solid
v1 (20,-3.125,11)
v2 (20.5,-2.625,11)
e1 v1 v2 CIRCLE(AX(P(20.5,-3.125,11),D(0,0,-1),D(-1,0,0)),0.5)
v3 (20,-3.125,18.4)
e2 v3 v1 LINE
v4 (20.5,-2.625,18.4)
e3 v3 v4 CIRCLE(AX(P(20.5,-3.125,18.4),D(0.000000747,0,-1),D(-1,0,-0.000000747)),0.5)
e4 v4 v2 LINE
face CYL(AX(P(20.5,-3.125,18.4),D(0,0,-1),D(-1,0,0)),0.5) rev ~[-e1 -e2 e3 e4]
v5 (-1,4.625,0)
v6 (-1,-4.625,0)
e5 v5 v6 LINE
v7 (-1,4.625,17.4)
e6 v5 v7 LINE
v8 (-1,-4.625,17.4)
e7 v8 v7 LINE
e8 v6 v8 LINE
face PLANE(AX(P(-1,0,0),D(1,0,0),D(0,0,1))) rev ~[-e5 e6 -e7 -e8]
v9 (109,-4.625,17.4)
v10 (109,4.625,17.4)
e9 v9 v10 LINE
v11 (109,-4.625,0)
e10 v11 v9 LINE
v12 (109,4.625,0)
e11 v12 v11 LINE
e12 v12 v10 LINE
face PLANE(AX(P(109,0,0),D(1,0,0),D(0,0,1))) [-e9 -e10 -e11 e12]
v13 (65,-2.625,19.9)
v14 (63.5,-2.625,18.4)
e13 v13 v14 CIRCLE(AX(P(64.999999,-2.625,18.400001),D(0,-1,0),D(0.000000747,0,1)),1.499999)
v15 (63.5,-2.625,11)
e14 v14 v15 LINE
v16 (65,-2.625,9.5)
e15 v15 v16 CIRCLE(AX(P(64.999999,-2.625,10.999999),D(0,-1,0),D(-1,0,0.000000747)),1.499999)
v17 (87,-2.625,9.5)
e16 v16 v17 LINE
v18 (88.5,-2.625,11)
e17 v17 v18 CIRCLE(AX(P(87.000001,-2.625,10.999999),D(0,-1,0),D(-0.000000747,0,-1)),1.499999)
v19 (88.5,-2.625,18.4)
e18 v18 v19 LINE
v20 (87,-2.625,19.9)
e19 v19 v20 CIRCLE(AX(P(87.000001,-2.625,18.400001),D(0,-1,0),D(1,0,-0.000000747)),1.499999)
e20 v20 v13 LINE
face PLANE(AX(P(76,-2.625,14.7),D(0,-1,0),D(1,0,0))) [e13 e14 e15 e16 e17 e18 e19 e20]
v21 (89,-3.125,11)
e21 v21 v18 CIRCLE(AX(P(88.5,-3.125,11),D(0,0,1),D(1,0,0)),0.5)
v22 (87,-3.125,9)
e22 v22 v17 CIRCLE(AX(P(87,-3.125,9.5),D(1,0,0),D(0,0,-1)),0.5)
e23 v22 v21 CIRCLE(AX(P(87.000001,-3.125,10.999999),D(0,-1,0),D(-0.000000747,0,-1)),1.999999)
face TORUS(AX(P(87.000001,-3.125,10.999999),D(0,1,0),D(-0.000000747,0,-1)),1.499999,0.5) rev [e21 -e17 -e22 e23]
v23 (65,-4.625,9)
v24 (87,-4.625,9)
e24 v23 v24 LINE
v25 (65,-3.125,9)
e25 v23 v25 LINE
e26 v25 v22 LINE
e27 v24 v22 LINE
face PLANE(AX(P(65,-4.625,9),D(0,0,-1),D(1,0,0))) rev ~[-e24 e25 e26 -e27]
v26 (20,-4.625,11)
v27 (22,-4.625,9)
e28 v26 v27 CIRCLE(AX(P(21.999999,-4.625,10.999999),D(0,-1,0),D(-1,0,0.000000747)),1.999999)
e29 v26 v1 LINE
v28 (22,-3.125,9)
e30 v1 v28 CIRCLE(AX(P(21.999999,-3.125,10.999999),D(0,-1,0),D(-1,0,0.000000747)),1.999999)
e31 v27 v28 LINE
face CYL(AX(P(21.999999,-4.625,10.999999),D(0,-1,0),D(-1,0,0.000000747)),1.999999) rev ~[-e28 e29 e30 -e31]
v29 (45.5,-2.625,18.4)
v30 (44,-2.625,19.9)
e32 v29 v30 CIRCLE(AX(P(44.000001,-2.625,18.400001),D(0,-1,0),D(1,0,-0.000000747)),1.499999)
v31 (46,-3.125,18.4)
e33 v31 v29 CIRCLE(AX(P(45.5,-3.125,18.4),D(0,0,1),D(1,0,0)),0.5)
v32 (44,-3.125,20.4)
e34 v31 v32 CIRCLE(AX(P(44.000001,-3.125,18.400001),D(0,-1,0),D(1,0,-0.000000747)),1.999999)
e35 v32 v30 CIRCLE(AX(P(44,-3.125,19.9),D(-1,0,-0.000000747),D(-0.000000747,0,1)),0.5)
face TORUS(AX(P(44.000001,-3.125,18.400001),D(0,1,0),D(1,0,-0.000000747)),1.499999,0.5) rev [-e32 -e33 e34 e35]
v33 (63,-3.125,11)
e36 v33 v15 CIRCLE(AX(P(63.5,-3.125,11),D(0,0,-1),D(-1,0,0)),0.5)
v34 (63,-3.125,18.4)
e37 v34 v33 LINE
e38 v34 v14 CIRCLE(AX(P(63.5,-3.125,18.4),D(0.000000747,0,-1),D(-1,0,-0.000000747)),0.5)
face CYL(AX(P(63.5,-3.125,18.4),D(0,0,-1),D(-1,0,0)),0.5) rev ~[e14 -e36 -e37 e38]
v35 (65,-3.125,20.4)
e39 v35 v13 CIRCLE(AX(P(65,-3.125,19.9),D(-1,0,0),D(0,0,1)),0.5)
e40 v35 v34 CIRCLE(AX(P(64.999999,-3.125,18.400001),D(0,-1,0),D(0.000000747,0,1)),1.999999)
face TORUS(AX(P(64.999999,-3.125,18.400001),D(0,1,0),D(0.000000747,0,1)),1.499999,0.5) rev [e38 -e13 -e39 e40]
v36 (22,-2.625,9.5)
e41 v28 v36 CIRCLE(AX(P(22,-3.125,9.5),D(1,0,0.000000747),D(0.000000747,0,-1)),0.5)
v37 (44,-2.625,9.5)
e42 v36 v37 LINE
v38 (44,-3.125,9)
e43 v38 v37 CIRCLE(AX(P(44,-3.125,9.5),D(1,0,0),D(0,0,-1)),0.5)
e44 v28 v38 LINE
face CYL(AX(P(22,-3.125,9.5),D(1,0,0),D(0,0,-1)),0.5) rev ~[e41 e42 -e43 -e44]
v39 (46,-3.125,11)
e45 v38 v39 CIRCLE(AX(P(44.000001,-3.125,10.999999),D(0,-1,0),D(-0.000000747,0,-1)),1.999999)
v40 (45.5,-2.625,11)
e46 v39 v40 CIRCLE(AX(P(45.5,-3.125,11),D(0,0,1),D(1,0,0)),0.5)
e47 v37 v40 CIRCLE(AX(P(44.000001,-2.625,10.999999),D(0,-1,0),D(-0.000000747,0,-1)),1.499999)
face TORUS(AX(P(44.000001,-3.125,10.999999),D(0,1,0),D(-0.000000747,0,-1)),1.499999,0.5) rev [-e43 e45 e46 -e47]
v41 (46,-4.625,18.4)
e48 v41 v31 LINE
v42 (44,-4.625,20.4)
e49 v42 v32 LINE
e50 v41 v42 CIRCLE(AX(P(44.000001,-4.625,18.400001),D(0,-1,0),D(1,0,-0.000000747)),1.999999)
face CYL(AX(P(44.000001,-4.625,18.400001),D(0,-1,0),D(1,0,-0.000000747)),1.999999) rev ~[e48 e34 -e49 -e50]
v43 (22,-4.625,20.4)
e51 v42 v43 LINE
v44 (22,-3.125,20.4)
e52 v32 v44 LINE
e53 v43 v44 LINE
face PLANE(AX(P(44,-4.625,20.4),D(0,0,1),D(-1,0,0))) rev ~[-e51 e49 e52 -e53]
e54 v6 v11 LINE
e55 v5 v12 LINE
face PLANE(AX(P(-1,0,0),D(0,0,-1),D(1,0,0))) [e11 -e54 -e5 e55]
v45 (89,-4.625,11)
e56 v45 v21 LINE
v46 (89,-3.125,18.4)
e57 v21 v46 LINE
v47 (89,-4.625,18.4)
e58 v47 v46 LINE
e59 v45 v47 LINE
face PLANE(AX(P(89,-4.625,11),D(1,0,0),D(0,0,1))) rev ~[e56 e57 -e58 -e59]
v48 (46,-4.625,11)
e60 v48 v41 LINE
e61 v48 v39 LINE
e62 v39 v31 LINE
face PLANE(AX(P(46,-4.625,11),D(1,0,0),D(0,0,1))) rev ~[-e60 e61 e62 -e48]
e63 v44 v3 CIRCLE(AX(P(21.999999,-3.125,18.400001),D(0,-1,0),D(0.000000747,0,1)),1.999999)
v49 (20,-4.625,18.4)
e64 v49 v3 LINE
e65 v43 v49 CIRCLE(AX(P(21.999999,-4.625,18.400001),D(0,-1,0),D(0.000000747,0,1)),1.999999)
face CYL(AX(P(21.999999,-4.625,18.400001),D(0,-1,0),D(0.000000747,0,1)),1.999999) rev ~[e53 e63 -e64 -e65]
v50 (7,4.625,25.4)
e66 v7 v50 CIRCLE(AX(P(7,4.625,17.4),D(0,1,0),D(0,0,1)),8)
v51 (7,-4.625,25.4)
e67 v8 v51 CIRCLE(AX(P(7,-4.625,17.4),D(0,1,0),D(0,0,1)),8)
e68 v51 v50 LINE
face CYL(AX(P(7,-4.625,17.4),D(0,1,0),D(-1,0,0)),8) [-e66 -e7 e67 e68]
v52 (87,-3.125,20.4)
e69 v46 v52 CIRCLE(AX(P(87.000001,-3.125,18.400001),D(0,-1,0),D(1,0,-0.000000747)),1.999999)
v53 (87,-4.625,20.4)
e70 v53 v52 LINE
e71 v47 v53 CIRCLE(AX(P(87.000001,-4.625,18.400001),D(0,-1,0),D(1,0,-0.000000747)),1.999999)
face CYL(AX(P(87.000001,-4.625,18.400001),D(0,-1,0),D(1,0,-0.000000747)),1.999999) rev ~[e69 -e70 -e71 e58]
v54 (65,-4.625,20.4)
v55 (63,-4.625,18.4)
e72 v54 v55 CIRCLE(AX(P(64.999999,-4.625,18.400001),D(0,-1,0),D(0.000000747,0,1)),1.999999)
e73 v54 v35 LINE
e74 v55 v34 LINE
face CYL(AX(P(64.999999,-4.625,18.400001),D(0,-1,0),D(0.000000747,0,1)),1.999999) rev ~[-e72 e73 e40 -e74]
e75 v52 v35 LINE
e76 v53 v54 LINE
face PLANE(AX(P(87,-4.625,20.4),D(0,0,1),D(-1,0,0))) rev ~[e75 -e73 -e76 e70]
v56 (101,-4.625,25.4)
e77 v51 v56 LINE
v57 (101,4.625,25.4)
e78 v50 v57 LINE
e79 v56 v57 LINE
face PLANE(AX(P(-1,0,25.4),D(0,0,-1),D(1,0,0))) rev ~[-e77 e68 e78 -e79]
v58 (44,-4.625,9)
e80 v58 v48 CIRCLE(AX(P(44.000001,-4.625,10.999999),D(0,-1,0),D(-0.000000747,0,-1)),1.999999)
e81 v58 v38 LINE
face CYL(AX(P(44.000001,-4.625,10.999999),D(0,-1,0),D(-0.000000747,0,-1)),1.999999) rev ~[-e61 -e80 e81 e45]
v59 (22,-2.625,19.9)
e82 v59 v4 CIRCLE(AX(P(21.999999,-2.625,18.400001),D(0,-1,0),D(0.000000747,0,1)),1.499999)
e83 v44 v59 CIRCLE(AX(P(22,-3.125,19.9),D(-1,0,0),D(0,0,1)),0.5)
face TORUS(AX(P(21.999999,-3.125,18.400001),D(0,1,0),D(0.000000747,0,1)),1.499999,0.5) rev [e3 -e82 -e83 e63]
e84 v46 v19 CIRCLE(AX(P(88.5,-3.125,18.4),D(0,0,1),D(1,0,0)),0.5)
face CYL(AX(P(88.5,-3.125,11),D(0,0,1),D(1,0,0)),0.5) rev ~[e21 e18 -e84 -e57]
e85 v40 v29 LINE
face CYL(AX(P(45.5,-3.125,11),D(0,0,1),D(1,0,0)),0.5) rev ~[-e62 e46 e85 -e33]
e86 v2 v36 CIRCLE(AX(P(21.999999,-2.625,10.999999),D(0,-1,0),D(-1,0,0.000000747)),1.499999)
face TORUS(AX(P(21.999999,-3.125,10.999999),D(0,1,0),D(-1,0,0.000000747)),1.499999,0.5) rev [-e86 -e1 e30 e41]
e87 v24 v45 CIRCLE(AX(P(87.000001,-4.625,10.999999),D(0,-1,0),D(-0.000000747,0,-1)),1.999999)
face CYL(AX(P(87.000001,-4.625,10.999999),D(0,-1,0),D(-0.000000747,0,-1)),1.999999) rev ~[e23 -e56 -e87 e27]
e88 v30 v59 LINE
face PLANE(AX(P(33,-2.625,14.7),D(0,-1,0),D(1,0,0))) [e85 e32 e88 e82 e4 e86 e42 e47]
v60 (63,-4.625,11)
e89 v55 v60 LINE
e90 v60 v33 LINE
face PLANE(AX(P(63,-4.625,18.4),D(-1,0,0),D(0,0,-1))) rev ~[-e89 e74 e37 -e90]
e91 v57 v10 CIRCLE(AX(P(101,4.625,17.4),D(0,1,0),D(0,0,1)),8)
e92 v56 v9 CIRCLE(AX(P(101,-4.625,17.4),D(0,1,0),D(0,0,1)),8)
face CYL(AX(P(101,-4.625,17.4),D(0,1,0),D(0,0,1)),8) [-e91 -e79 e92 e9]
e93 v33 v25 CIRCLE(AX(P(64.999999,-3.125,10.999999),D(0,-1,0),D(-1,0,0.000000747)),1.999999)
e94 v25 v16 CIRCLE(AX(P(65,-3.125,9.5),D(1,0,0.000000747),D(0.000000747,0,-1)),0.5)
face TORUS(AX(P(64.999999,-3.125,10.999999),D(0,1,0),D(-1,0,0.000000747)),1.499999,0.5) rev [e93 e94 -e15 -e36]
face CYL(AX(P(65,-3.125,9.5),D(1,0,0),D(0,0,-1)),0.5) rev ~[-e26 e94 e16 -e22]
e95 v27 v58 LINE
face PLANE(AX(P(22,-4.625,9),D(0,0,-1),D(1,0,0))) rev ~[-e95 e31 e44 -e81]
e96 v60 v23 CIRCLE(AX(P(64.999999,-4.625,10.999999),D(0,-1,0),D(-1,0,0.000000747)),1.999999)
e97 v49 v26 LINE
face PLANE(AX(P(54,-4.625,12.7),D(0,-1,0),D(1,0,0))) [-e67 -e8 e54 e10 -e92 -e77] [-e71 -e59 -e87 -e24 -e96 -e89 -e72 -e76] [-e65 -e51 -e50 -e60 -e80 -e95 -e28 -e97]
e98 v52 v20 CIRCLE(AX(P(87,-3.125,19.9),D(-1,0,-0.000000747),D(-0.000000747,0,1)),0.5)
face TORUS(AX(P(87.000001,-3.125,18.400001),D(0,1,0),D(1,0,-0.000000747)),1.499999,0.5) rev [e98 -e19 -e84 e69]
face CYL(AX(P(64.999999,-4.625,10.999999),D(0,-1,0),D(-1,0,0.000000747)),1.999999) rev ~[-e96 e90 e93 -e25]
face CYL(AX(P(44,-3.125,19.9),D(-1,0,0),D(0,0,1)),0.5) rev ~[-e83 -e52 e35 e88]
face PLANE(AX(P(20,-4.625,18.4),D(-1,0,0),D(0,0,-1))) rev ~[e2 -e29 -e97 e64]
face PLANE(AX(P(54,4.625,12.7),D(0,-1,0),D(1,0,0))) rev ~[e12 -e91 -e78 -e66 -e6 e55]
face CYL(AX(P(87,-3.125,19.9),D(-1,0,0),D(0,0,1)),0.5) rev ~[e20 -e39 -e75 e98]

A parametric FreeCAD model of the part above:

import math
import FreeCAD as App
import Part
import Sketcher

V = App.Vector


def edges_at(feature, points):
    """Names of the edges that pass closest to the given points."""
    edges = feature.Shape.Edges
    near = lambda p: min(range(len(edges)), key=lambda i: edges[i].distToShape(Part.Vertex(*p))[0])
    return sorted({f"Edge{near(p) + 1}" for p in points})

doc = App.newDocument("Part")
body = doc.addObject("PartDesign::Body", "Body")

# Sketch on XZ plane
sketch1 = body.newObject("Sketcher::SketchObject", "Sketch")
sketch1.AttachmentSupport = (doc.getObject("XZ_Plane"), [""])
sketch1.MapMode = "FlatFace"
sketch1.addGeometry(Part.LineSegment(V(-1, 25.4, 0), V(-1, 0, 0)), False)
sketch1.addGeometry(Part.LineSegment(V(-1, 0, 0), V(109, 0, 0)), False)
sketch1.addGeometry(Part.LineSegment(V(109, 0, 0), V(109, 25.4, 0)), False)
sketch1.addGeometry(Part.LineSegment(V(109, 25.4, 0), V(-1, 25.4, 0)), False)
sketch1.addConstraint(Sketcher.Constraint("Coincident", 0, 2, 1, 1))
sketch1.addConstraint(Sketcher.Constraint("Coincident", 1, 2, 2, 1))
sketch1.addConstraint(Sketcher.Constraint("Coincident", 2, 2, 3, 1))
sketch1.addConstraint(Sketcher.Constraint("Coincident", 3, 2, 0, 1))
sketch1.addConstraint(Sketcher.Constraint("Vertical", 0))
sketch1.addConstraint(Sketcher.Constraint("Horizontal", 1))
sketch1.addConstraint(Sketcher.Constraint("Vertical", 2))
sketch1.addConstraint(Sketcher.Constraint("Horizontal", 3))
sketch1.addConstraint(Sketcher.Constraint("PointOnObject", 0, 2, -1))
sketch1.addConstraint(Sketcher.Constraint("DistanceX", 1, 1, 1, 2, 110.0))
sketch1.addConstraint(Sketcher.Constraint("DistanceY", 0, 2, 0, 1, 25.4))
sketch1.addConstraint(Sketcher.Constraint("DistanceX", 0, 2, -1, 1, 1.0))
pad1 = body.newObject("PartDesign::Pad", "Pad")
pad1.Profile = sketch1
pad1.Length = 9.25
pad1.Midplane = True

# Sketch on XZ plane
sketch2 = body.newObject("Sketcher::SketchObject", "Sketch001")
sketch2.AttachmentSupport = (doc.getObject("XZ_Plane"), [""])
sketch2.MapMode = "FlatFace"
sketch2.AttachmentOffset = App.Placement(V(0, 0, 4.625), App.Rotation())
sketch2.addGeometry(Part.ArcOfCircle(Part.Circle(V(21.999999, 10.999999, 0), V(0, 0, 1), 1.999999), math.radians(179.999957), math.radians(270.000043)), False)
sketch2.addGeometry(Part.LineSegment(V(22, 9, 0), V(44, 9, 0)), False)
sketch2.addGeometry(Part.ArcOfCircle(Part.Circle(V(44.000001, 10.999999, 0), V(0, 0, 1), 1.999999), math.radians(-90.000043), math.radians(0.000043)), False)
sketch2.addGeometry(Part.LineSegment(V(46, 11, 0), V(46, 18.4, 0)), False)
sketch2.addGeometry(Part.ArcOfCircle(Part.Circle(V(44.000001, 18.400001, 0), V(0, 0, 1), 1.999999), math.radians(-0.000043), math.radians(90.000043)), False)
sketch2.addGeometry(Part.LineSegment(V(44, 20.4, 0), V(22, 20.4, 0)), False)
sketch2.addGeometry(Part.ArcOfCircle(Part.Circle(V(21.999999, 18.400001, 0), V(0, 0, 1), 1.999999), math.radians(89.999957), math.radians(180.000043)), False)
sketch2.addGeometry(Part.LineSegment(V(20, 18.4, 0), V(20, 11, 0)), False)
sketch2.addGeometry(Part.LineSegment(V(87, 20.4, 0), V(65, 20.4, 0)), False)
sketch2.addGeometry(Part.ArcOfCircle(Part.Circle(V(64.999999, 18.400001, 0), V(0, 0, 1), 1.999999), math.radians(89.999957), math.radians(180.000043)), False)
sketch2.addGeometry(Part.LineSegment(V(63, 18.4, 0), V(63, 11, 0)), False)
sketch2.addGeometry(Part.ArcOfCircle(Part.Circle(V(64.999999, 10.999999, 0), V(0, 0, 1), 1.999999), math.radians(179.999957), math.radians(270.000043)), False)
sketch2.addGeometry(Part.LineSegment(V(65, 9, 0), V(87, 9, 0)), False)
sketch2.addGeometry(Part.ArcOfCircle(Part.Circle(V(87.000001, 10.999999, 0), V(0, 0, 1), 1.999999), math.radians(-90.000043), math.radians(0.000043)), False)
sketch2.addGeometry(Part.LineSegment(V(89, 11, 0), V(89, 18.4, 0)), False)
sketch2.addGeometry(Part.ArcOfCircle(Part.Circle(V(87.000001, 18.400001, 0), V(0, 0, 1), 1.999999), math.radians(-0.000043), math.radians(90.000043)), False)
sketch2.addConstraint(Sketcher.Constraint("Tangent", 0, 2, 1, 1))
sketch2.addConstraint(Sketcher.Constraint("Tangent", 1, 2, 2, 1))
sketch2.addConstraint(Sketcher.Constraint("Tangent", 2, 2, 3, 1))
sketch2.addConstraint(Sketcher.Constraint("Tangent", 3, 2, 4, 1))
sketch2.addConstraint(Sketcher.Constraint("Tangent", 4, 2, 5, 1))
sketch2.addConstraint(Sketcher.Constraint("Tangent", 5, 2, 6, 1))
sketch2.addConstraint(Sketcher.Constraint("Tangent", 6, 2, 7, 1))
sketch2.addConstraint(Sketcher.Constraint("Tangent", 7, 2, 0, 1))
sketch2.addConstraint(Sketcher.Constraint("Tangent", 8, 2, 9, 1))
sketch2.addConstraint(Sketcher.Constraint("Tangent", 9, 2, 10, 1))
sketch2.addConstraint(Sketcher.Constraint("Tangent", 10, 2, 11, 1))
sketch2.addConstraint(Sketcher.Constraint("Tangent", 11, 2, 12, 1))
sketch2.addConstraint(Sketcher.Constraint("Tangent", 12, 2, 13, 1))
sketch2.addConstraint(Sketcher.Constraint("Tangent", 13, 2, 14, 1))
sketch2.addConstraint(Sketcher.Constraint("Tangent", 14, 2, 15, 1))
sketch2.addConstraint(Sketcher.Constraint("Tangent", 15, 2, 8, 1))
sketch2.addConstraint(Sketcher.Constraint("Horizontal", 1))
sketch2.addConstraint(Sketcher.Constraint("Vertical", 3))
sketch2.addConstraint(Sketcher.Constraint("Horizontal", 5))
sketch2.addConstraint(Sketcher.Constraint("Vertical", 7))
sketch2.addConstraint(Sketcher.Constraint("Horizontal", 8))
sketch2.addConstraint(Sketcher.Constraint("Vertical", 10))
sketch2.addConstraint(Sketcher.Constraint("Horizontal", 12))
sketch2.addConstraint(Sketcher.Constraint("Vertical", 14))
sketch2.addConstraint(Sketcher.Constraint("Equal", 0, 2))
sketch2.addConstraint(Sketcher.Constraint("Equal", 2, 4))
sketch2.addConstraint(Sketcher.Constraint("Equal", 4, 6))
sketch2.addConstraint(Sketcher.Constraint("Equal", 6, 9))
sketch2.addConstraint(Sketcher.Constraint("Equal", 9, 11))
sketch2.addConstraint(Sketcher.Constraint("Equal", 11, 13))
sketch2.addConstraint(Sketcher.Constraint("Equal", 13, 15))
sketch2.addConstraint(Sketcher.Constraint("Horizontal", 6, 3, 9, 3))
sketch2.addConstraint(Sketcher.Constraint("Horizontal", 2, 3, 11, 3))
sketch2.addConstraint(Sketcher.Constraint("Equal", 5, 8))
sketch2.addConstraint(Sketcher.Constraint("Radius", 0, 1.999999))
sketch2.addConstraint(Sketcher.Constraint("DistanceX", 1, 1, 1, 2, 22.0))
sketch2.addConstraint(Sketcher.Constraint("DistanceY", 3, 1, 3, 2, 7.4))
sketch2.addConstraint(Sketcher.Constraint("DistanceX", -1, 1, 0, 3, 21.999999))
sketch2.addConstraint(Sketcher.Constraint("DistanceY", -1, 1, 0, 3, 10.999999))
sketch2.addConstraint(Sketcher.Constraint("DistanceX", -1, 1, 9, 3, 64.999999))
pocket1 = body.newObject("PartDesign::Pocket", "Pocket")
pocket1.Profile = sketch2
pocket1.Length = 2
doc.recompute()

fillet = body.newObject("PartDesign::Fillet", "Fillet")
fillet.Base = (pocket1, edges_at(pocket1, [(89, -2.625, 14.7), (46, -2.625, 14.7)]))
fillet.Radius = 0.5
doc.recompute()

fillet2 = body.newObject("PartDesign::Fillet", "Fillet001")
fillet2.Base = (fillet, edges_at(fillet, [(109, 0, 25.4), (-1, 0, 25.4)]))
fillet2.Radius = 8

doc.recompute()
